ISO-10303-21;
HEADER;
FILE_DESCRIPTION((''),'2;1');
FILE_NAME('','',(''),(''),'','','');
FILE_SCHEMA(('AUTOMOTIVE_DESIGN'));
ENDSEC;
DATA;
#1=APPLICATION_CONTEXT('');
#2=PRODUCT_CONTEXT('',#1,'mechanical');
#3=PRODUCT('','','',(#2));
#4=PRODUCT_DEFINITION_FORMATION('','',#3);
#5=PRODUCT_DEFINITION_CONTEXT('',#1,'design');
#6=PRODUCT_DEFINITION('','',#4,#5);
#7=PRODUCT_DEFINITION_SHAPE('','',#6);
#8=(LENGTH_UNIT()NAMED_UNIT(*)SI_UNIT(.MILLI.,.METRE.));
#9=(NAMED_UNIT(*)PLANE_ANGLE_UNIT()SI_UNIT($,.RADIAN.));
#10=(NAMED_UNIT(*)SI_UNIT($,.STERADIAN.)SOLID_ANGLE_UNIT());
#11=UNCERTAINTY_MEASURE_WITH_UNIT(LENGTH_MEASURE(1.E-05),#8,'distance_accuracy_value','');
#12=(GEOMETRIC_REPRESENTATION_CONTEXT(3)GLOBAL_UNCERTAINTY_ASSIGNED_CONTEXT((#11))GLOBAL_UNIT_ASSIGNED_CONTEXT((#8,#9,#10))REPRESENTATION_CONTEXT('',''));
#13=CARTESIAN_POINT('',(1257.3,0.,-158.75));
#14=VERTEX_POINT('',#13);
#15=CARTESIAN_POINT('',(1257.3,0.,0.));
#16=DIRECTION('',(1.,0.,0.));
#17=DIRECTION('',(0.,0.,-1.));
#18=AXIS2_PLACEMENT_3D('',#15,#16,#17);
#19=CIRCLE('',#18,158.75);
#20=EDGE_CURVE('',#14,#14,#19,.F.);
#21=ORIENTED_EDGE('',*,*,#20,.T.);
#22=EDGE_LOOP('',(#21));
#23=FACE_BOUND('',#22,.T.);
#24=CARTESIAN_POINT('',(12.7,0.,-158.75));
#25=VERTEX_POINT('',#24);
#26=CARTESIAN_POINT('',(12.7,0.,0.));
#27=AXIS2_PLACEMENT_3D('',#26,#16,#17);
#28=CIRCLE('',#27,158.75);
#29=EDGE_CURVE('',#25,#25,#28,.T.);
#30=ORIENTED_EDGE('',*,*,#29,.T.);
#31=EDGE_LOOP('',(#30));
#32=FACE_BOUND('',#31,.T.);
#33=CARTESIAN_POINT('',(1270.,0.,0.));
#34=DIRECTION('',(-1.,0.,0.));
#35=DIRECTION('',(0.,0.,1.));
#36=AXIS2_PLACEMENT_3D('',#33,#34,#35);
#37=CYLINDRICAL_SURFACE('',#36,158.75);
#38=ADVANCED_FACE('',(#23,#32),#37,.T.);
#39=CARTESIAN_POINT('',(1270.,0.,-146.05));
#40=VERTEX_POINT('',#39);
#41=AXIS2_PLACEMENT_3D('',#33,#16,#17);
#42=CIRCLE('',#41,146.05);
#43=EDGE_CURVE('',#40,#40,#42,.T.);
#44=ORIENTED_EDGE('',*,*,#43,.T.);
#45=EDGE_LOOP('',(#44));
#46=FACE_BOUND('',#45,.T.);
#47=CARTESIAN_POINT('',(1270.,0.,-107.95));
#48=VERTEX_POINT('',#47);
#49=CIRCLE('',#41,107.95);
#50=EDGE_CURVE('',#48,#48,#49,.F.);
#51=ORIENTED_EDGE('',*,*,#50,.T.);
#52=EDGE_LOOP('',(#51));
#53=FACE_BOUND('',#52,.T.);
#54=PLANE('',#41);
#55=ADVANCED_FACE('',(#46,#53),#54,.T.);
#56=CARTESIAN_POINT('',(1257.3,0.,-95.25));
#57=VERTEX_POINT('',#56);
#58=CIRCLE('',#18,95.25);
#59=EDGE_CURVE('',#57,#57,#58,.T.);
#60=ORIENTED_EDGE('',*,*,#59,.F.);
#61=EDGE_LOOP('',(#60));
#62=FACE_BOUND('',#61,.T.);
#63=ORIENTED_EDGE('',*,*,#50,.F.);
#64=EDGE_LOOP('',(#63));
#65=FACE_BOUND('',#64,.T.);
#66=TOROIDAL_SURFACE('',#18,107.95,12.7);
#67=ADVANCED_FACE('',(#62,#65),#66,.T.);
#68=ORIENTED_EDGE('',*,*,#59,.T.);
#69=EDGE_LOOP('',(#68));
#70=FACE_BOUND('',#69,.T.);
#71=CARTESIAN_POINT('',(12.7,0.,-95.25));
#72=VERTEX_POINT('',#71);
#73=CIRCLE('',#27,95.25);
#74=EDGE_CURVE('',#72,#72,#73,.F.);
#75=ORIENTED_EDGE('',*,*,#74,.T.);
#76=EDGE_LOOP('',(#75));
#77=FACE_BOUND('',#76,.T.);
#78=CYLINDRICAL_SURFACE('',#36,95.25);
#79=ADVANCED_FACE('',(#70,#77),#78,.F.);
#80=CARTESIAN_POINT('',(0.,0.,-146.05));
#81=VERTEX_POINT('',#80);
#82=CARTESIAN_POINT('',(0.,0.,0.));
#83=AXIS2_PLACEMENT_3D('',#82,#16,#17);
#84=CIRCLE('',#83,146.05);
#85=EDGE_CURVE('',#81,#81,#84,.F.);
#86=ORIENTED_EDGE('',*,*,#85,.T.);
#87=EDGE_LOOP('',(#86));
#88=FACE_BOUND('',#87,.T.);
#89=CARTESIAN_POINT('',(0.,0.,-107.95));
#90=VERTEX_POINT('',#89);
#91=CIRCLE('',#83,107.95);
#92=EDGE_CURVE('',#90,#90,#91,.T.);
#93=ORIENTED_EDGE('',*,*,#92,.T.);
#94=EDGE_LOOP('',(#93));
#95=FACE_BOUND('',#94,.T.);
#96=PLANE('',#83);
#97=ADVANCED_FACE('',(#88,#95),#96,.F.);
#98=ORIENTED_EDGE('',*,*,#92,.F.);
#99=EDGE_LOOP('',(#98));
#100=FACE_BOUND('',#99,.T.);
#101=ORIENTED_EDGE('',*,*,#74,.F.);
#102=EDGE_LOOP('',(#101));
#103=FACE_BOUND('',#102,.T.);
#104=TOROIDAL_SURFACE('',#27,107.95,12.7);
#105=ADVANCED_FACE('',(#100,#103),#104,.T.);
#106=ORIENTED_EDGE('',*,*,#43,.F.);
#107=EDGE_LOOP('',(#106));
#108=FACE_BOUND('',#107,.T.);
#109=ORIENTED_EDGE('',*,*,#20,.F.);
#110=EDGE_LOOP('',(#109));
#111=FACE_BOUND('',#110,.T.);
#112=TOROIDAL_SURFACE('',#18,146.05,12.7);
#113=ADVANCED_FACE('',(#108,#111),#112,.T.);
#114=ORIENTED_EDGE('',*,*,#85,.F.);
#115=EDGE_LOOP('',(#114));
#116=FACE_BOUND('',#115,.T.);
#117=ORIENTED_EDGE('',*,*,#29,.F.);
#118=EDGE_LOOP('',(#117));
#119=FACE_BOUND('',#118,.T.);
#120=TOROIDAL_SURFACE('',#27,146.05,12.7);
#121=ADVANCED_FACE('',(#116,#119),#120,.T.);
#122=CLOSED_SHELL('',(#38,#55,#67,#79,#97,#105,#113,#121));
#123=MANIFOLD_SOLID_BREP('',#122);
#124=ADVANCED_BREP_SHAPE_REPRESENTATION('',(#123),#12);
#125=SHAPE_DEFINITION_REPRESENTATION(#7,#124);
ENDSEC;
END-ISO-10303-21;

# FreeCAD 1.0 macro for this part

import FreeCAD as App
import Part
import Sketcher
from FreeCAD import Vector
Q = App.Units.Quantity


def edges_at(feature, points):
    """Names of the edges that pass closest to the given points."""
    edges = feature.Shape.Edges
    near = lambda p: min(range(len(edges)), key=lambda i: edges[i].distToShape(Part.Vertex(*p))[0])
    return sorted({f"Edge{near(p) + 1}" for p in points})

doc = App.newDocument("Part")
body = doc.addObject("PartDesign::Body", "Body")

# Sketch on YZ plane
sketch1 = body.newObject("Sketcher::SketchObject", "Sketch")
sketch1.AttachmentSupport = (doc.getObject("YZ_Plane"), [""])
sketch1.MapMode = "FlatFace"
sketch1.addGeometry(Part.Circle(Vector(0, 0, 0), Vector(0, 0, 1), 159), False)
sketch1.addGeometry(Part.Circle(Vector(0, 0, 0), Vector(0, 0, 1), 95), False)
sketch1.addConstraint(Sketcher.Constraint("Coincident", 0, 3, -1, 1))
sketch1.addConstraint(Sketcher.Constraint("Coincident", 1, 3, -1, 1))
sketch1.addConstraint(Sketcher.Constraint("Diameter", 0, Q("12.5 in")))
sketch1.addConstraint(Sketcher.Constraint("Diameter", 1, Q("7.5 in")))
pad1 = body.newObject("PartDesign::Pad", "Pad")
pad1.Profile = sketch1
pad1.Length = Q("50 in")
doc.recompute()

fillet = body.newObject("PartDesign::Fillet", "Fillet")
fillet.Base = (pad1, edges_at(pad1, [(1270, 0, 158.75), (1270, 0, 95.25)]))
fillet.Radius = Q("0.5 in")
doc.recompute()

fillet2 = body.newObject("PartDesign::Fillet", "Fillet001")
fillet2.Base = (fillet, edges_at(fillet, [(0, 0, 158.75), (0, 0, 95.25)]))
fillet2.Radius = Q("0.5 in")

doc.recompute()
